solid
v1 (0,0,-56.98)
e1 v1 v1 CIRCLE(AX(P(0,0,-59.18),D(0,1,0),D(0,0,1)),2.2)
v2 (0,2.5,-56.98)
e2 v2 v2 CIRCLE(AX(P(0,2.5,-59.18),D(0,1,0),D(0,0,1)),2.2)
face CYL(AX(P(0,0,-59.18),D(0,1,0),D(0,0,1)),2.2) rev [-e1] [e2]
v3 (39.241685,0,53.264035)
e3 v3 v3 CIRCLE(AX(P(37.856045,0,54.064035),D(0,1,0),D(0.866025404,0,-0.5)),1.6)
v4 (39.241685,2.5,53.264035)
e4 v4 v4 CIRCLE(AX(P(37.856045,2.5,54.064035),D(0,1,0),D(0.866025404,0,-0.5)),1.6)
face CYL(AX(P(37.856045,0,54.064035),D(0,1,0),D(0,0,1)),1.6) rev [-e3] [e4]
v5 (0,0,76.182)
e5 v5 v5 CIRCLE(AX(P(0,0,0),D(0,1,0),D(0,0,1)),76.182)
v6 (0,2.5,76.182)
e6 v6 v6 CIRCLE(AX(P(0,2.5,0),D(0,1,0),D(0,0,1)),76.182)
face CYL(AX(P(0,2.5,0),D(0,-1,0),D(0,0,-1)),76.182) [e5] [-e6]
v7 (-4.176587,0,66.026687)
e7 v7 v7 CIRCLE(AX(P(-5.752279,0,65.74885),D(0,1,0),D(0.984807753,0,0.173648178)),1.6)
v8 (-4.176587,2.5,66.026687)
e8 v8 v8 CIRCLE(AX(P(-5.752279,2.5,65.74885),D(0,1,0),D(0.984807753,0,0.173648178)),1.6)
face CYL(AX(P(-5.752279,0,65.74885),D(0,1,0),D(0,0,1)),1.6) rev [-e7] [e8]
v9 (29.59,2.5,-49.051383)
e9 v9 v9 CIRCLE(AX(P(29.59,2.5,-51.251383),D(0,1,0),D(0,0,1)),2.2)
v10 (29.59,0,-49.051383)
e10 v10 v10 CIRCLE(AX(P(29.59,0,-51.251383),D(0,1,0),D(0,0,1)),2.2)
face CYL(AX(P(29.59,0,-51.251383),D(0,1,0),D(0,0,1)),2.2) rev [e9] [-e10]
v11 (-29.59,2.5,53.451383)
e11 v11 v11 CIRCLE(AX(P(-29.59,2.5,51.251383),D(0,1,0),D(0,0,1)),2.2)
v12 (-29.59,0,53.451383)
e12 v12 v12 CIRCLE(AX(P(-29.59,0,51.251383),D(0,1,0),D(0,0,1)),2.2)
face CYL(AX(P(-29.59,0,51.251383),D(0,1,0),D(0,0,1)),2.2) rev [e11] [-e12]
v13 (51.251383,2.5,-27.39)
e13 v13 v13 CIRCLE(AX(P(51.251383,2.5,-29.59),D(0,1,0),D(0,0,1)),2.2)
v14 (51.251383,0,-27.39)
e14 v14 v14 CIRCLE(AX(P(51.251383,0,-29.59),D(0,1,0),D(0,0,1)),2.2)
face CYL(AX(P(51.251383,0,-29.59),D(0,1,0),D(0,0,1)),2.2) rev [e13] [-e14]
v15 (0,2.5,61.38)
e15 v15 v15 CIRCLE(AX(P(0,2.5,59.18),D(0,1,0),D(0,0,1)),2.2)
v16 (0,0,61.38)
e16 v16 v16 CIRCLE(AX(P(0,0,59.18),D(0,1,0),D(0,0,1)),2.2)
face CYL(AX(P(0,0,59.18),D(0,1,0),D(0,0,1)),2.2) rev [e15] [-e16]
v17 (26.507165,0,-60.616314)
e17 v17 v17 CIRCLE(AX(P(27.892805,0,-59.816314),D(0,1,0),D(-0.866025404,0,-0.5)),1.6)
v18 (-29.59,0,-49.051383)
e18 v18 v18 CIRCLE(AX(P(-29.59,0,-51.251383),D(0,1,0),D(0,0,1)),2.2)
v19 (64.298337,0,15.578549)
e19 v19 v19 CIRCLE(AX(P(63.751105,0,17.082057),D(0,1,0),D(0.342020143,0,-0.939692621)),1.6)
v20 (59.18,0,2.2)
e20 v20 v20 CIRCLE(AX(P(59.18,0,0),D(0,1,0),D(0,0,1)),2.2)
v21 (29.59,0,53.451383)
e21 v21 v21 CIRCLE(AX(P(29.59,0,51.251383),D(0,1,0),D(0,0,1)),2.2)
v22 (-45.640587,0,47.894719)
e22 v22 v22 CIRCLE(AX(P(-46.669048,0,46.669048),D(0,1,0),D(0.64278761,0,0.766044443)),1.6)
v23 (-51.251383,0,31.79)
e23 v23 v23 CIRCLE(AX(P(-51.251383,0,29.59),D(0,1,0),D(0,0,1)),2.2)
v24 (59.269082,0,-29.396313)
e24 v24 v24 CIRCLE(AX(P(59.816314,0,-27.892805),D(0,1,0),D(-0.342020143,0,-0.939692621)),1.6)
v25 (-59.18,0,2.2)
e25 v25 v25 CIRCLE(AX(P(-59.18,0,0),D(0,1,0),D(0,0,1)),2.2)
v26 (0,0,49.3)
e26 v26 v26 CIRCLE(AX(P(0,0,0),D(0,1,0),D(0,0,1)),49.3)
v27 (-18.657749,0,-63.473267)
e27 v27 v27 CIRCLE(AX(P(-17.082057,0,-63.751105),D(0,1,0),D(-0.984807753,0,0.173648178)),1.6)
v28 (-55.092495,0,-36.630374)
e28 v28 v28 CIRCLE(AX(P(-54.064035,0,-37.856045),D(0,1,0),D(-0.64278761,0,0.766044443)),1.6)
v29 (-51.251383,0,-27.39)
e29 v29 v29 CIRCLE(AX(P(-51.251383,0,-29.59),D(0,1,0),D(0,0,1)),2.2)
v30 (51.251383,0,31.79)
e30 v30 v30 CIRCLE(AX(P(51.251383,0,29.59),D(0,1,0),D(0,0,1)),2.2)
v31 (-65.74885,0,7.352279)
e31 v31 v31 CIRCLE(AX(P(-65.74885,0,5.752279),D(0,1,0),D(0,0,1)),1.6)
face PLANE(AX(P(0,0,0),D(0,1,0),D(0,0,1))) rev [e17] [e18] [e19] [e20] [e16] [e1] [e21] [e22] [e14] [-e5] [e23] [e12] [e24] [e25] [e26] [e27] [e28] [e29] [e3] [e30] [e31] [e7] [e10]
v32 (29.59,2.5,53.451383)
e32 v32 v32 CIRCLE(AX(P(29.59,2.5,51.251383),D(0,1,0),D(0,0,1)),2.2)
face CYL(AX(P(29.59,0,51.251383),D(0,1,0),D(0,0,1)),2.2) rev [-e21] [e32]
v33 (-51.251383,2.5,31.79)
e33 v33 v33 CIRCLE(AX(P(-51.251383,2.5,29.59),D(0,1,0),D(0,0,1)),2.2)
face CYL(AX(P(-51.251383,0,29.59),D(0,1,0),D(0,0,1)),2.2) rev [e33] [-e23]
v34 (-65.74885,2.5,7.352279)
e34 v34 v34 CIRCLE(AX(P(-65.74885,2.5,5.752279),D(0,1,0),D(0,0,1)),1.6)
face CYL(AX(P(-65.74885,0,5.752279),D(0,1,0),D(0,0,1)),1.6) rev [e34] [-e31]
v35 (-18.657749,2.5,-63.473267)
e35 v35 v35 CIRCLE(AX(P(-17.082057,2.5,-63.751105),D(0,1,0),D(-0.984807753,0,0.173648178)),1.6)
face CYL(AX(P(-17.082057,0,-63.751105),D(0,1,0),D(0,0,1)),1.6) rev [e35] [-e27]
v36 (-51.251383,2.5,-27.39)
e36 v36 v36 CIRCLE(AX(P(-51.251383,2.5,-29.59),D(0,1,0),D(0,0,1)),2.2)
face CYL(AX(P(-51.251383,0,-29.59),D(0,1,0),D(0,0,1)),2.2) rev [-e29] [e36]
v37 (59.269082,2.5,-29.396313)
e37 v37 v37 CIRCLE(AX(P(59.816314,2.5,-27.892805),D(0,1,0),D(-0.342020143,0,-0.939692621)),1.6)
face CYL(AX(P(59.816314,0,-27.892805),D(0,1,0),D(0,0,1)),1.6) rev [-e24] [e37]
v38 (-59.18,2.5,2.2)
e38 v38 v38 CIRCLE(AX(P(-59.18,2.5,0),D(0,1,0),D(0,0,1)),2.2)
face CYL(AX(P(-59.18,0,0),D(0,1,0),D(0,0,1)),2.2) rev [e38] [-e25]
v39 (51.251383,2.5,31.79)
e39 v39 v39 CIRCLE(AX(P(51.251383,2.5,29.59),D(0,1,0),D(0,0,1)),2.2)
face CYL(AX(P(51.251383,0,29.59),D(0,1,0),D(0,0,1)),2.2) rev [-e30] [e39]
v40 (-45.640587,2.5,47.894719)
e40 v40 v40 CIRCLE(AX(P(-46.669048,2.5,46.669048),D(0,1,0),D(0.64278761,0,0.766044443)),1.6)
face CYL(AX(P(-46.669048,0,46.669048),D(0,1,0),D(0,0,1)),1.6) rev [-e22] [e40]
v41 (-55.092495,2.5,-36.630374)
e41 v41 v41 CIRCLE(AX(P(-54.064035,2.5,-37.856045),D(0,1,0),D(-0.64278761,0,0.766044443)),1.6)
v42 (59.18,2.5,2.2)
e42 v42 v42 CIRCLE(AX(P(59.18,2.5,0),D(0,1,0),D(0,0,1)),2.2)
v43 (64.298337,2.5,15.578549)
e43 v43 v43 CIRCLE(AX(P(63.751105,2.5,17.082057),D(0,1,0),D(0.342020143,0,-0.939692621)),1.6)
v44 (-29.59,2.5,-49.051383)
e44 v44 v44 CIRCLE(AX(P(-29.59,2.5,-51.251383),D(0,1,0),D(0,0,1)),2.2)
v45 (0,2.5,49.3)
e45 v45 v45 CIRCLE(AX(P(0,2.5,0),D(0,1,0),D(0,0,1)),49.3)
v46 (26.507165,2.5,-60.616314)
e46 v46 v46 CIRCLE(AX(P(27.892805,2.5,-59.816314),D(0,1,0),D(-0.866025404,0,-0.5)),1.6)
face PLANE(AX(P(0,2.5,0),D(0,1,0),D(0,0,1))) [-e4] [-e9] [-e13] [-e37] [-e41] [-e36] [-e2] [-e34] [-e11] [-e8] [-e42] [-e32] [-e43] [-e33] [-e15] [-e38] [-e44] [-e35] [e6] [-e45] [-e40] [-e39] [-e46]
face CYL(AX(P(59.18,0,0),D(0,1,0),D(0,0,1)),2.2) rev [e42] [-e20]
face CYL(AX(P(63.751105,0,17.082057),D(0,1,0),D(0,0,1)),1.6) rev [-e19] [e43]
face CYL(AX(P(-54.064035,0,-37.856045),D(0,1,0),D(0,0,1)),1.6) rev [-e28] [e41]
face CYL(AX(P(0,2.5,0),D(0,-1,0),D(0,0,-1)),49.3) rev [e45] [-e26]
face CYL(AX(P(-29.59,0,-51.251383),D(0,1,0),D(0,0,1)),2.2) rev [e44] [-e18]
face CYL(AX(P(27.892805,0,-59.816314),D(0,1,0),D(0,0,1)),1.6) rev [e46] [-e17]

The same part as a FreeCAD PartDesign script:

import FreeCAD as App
import Part
import Sketcher
Q = App.Units.Quantity

doc = App.newDocument("Part")
body = doc.addObject("PartDesign::Body", "Body")

# Sketch on XZ plane
sketch1 = body.newObject("Sketcher::SketchObject", "Sketch")
sketch1.AttachmentSupport = (doc.getObject("XZ_Plane"), [""])
sketch1.MapMode = "FlatFace"
sketch1.addGeometry([
    Part.Circle(App.Vector(0, 0, 0), App.Vector(0, 0, 1), 76.182),
    Part.Circle(App.Vector(0, 0, 0), App.Vector(0, 0, 1), 49.3),
], False)
sketch1.addConstraint([
    Sketcher.Constraint("Coincident", 0, 3, -1, 1),
    Sketcher.Constraint("Coincident", 1, 3, -1, 1),
    Sketcher.Constraint("Diameter", 1, Q("98.6 mm")),
    Sketcher.Constraint("Diameter", 0, Q("152.364 mm")),
])
pad1 = body.newObject("PartDesign::Pad", "Pad")
pad1.Profile = sketch1
pad1.Length = 2.5
pad1.Reversed = True

# Sketch on XZ plane
sketch2 = body.newObject("Sketcher::SketchObject", "Sketch001")
sketch2.AttachmentSupport = (doc.getObject("XZ_Plane"), [""])
sketch2.MapMode = "FlatFace"
sketch2.AttachmentOffset = App.Placement(App.Vector(0, 0, -2.5), App.Rotation())
sketch2.addGeometry(Part.Circle(App.Vector(-65.74885, 5.752279, 0), App.Vector(0, 0, 1), 1.6), False)
sketch2.addConstraint([
    Sketcher.Constraint("Diameter", 0, Q("3.2 mm")),
    Sketcher.Constraint("DistanceX", 0, 3, -1, 1, Q("65.74885 mm")),
    Sketcher.Constraint("DistanceY", -1, 1, 0, 3, Q("5.752279 mm")),
])
pocket1 = body.newObject("PartDesign::Pocket", "Pocket")
pocket1.Profile = sketch2
pocket1.Type = "ThroughAll"
pocket1.Reversed = True

# Sketch on XZ plane
sketch3 = body.newObject("Sketcher::SketchObject", "Sketch002")
sketch3.AttachmentSupport = (doc.getObject("XZ_Plane"), [""])
sketch3.MapMode = "FlatFace"
sketch3.AttachmentOffset = App.Placement(App.Vector(0, 0, -2.5), App.Rotation())
sketch3.addGeometry([
    Part.Circle(App.Vector(0, -59.18, 0), App.Vector(0, 0, 1), 2.2),  # 0
    Part.Circle(App.Vector(29.59, -51.251383, 0), App.Vector(0, 0, 1), 2.2),  # 1
    Part.Circle(App.Vector(51.251383, -29.59, 0), App.Vector(0, 0, 1), 2.2),  # 2
    Part.Circle(App.Vector(59.18, 0, 0), App.Vector(0, 0, 1), 2.2),  # 3
    Part.Circle(App.Vector(51.251383, 29.59, 0), App.Vector(0, 0, 1), 2.2),  # 4
    Part.Circle(App.Vector(29.59, 51.251383, 0), App.Vector(0, 0, 1), 2.2),  # 5
    Part.Circle(App.Vector(0, 59.18, 0), App.Vector(0, 0, 1), 2.2),  # 6
    Part.Circle(App.Vector(-29.59, 51.251383, 0), App.Vector(0, 0, 1), 2.2),  # 7
    Part.Circle(App.Vector(-51.251383, 29.59, 0), App.Vector(0, 0, 1), 2.2),  # 8
    Part.Circle(App.Vector(-59.18, 0, 0), App.Vector(0, 0, 1), 2.2),  # 9
    Part.Circle(App.Vector(-51.251383, -29.59, 0), App.Vector(0, 0, 1), 2.2),  # 10
    Part.Circle(App.Vector(-29.59, -51.251383, 0), App.Vector(0, 0, 1), 2.2),  # 11
], False)
sketch3.addConstraint([
    Sketcher.Constraint("Equal", 0, 1),
    Sketcher.Constraint("Equal", 1, 2),
    Sketcher.Constraint("Equal", 2, 3),
    Sketcher.Constraint("Equal", 3, 4),
    Sketcher.Constraint("Equal", 4, 5),
    Sketcher.Constraint("Equal", 5, 6),
    Sketcher.Constraint("Equal", 6, 7),
    Sketcher.Constraint("Equal", 7, 8),
    Sketcher.Constraint("Equal", 8, 9),
    Sketcher.Constraint("Equal", 9, 10),
    Sketcher.Constraint("Equal", 10, 11),
    Sketcher.Constraint("Symmetric", 0, 3, 6, 3, -1, 1),
    Sketcher.Constraint("Symmetric", 1, 3, 7, 3, -1, 1),
    Sketcher.Constraint("Symmetric", 2, 3, 8, 3, -1, 1),
    Sketcher.Constraint("Symmetric", 3, 3, 9, 3, -1, 1),
    Sketcher.Constraint("Symmetric", 4, 3, 10, 3, -1, 1),
    Sketcher.Constraint("Symmetric", 5, 3, 11, 3, -1, 1),
    Sketcher.Constraint("Symmetric", 5, 3, 7, 3, -2),
    Sketcher.Constraint("Symmetric", 4, 3, 8, 3, -2),
    Sketcher.Constraint("PointOnObject", 0, 3, -2),
    Sketcher.Constraint("PointOnObject", 3, 3, -1),
    Sketcher.Constraint("Diameter", 0, Q("4.4 mm")),
    Sketcher.Constraint("DistanceY", 0, 3, -1, 1, Q("59.18 mm")),
    Sketcher.Constraint("DistanceX", -1, 1, 1, 3, Q("29.59 mm")),
    Sketcher.Constraint("DistanceY", 2, 3, -1, 1, Q("29.59 mm")),
    Sketcher.Constraint("DistanceX", -1, 1, 3, 3, Q("59.18 mm")),
    Sketcher.Constraint("DistanceY", 1, 3, -1, 1, Q("51.251383 mm")),
    Sketcher.Constraint("DistanceX", -1, 1, 2, 3, Q("51.251383 mm")),
])
pocket2 = body.newObject("PartDesign::Pocket", "Pocket001")
pocket2.Profile = sketch3
pocket2.Type = "ThroughAll"
pocket2.Reversed = True
doc.recompute()

polarpattern = body.newObject("PartDesign::PolarPattern", "PolarPattern")
polarpattern.Originals = [pocket1]
polarpattern.Axis = (doc.getObject("Y_Axis"), [""])
polarpattern.Angle = 360
polarpattern.Occurrences = 9
body.Tip = polarpattern

doc.recompute()
